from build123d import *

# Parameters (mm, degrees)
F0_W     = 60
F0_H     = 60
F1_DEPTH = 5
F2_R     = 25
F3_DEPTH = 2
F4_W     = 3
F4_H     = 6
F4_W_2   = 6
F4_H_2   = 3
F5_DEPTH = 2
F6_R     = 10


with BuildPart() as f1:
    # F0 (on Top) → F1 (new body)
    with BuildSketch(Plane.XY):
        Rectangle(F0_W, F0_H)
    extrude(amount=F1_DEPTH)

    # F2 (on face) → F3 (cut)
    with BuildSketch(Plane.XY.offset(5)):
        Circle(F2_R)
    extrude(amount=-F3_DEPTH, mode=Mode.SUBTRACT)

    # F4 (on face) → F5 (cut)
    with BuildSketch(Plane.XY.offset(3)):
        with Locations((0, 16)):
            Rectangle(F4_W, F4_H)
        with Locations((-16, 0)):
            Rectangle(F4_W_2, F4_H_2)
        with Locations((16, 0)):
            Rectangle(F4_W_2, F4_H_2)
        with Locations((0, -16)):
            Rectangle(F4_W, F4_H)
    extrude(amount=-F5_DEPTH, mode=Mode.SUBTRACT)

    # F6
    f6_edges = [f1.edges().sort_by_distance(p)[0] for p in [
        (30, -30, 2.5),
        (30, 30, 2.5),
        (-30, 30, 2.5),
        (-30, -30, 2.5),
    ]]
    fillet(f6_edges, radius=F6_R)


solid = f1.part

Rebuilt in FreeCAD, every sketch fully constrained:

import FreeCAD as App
import Part
import Sketcher
from FreeCAD import Vector


def edges_at(feature, points):
    """Names of the edges that pass closest to the given points."""
    edges = feature.Shape.Edges
    near = lambda p: min(range(len(edges)), key=lambda i: edges[i].distToShape(Part.Vertex(*p))[0])
    return sorted({f"Edge{near(p) + 1}" for p in points})

doc = App.newDocument("Part")
params = doc.addObject("Spreadsheet::Sheet", "Params")
for row, (alias, value) in enumerate([
    ("sketch1_width", "60 mm"),
    ("pad1_length", "5 mm"),
    ("sketch2_diameter", "50 mm"),
    ("pocket1_length", "2 mm"),
    ("sketch3_width", "3 mm"),
    ("sketch3_width2", "6 mm"),
    ("pocket2_length", "2 mm"),
    ("fillet_radius", "10 mm"),
], start=1):
    params.set(f"A{row}", alias)
    params.set(f"B{row}", "=" + value)
    params.setAlias(f"B{row}", alias)

body = doc.addObject("PartDesign::Body", "Body")

# Sketch on XY plane
sketch1 = doc.addObject("Sketcher::SketchObject", "Sketch")
body.addObject(sketch1)
sketch1.AttachmentSupport = (doc.XY_Plane, [""])
sketch1.MapMode = "FlatFace"
sketch1.addGeometry(Part.LineSegment(Vector(-30, 30, 0), Vector(-30, -30, 0)), False)
sketch1.addGeometry(Part.LineSegment(Vector(-30, -30, 0), Vector(30, -30, 0)), False)
sketch1.addGeometry(Part.LineSegment(Vector(30, -30, 0), Vector(30, 30, 0)), False)
sketch1.addGeometry(Part.LineSegment(Vector(30, 30, 0), Vector(-30, 30, 0)), False)
sketch1.addConstraint(Sketcher.Constraint("Coincident", 0, 2, 1, 1))
sketch1.addConstraint(Sketcher.Constraint("Coincident", 1, 2, 2, 1))
sketch1.addConstraint(Sketcher.Constraint("Coincident", 2, 2, 3, 1))
sketch1.addConstraint(Sketcher.Constraint("Coincident", 3, 2, 0, 1))
sketch1.addConstraint(Sketcher.Constraint("Vertical", 0))
sketch1.addConstraint(Sketcher.Constraint("Horizontal", 1))
sketch1.addConstraint(Sketcher.Constraint("Vertical", 2))
sketch1.addConstraint(Sketcher.Constraint("Horizontal", 3))
sketch1.addConstraint(Sketcher.Constraint("Symmetric", 0, 2, 2, 2, -1, 1))
sketch1.addConstraint(Sketcher.Constraint("Equal", 3, 0))
sketch1.addConstraint(Sketcher.Constraint("DistanceX", 1, 1, 1, 2, 60.0))
sketch1.setExpression("Constraints[10]", "Params.sketch1_width")
pad1 = doc.addObject("PartDesign::Pad", "Pad")
body.addObject(pad1)
pad1.Profile = sketch1
pad1.setExpression("Length", "Params.pad1_length")

# Sketch on XY plane
sketch2 = doc.addObject("Sketcher::SketchObject", "Sketch001")
body.addObject(sketch2)
sketch2.AttachmentSupport = (doc.XY_Plane, [""])
sketch2.MapMode = "FlatFace"
sketch2.AttachmentOffset = App.Placement(Vector(0, 0, 5), App.Rotation())
sketch2.addGeometry(Part.Circle(Vector(0, 0, 0), Vector(0, 0, 1), 25), False)
sketch2.addConstraint(Sketcher.Constraint("Coincident", 0, 3, -1, 1))
sketch2.addConstraint(Sketcher.Constraint("Diameter", 0, 50.0))
sketch2.setExpression("Constraints[1]", "Params.sketch2_diameter")
pocket1 = doc.addObject("PartDesign::Pocket", "Pocket")
body.addObject(pocket1)
pocket1.Profile = sketch2
pocket1.setExpression("Length", "Params.pocket1_length")

# Sketch on XY plane
sketch3 = doc.addObject("Sketcher::SketchObject", "Sketch002")
body.addObject(sketch3)
sketch3.AttachmentSupport = (doc.XY_Plane, [""])
sketch3.MapMode = "FlatFace"
sketch3.AttachmentOffset = App.Placement(Vector(0, 0, 3), App.Rotation())
sketch3.addGeometry(Part.LineSegment(Vector(-1.5, 19, 0), Vector(-1.5, 13, 0)), False)
sketch3.addGeometry(Part.LineSegment(Vector(-1.5, 13, 0), Vector(1.5, 13, 0)), False)
sketch3.addGeometry(Part.LineSegment(Vector(1.5, 13, 0), Vector(1.5, 19, 0)), False)
sketch3.addGeometry(Part.LineSegment(Vector(1.5, 19, 0), Vector(-1.5, 19, 0)), False)
sketch3.addGeometry(Part.LineSegment(Vector(-19, 1.5, 0), Vector(-19, -1.5, 0)), False)
sketch3.addGeometry(Part.LineSegment(Vector(-19, -1.5, 0), Vector(-13, -1.5, 0)), False)
sketch3.addGeometry(Part.LineSegment(Vector(-13, -1.5, 0), Vector(-13, 1.5, 0)), False)
sketch3.addGeometry(Part.LineSegment(Vector(-13, 1.5, 0), Vector(-19, 1.5, 0)), False)
sketch3.addGeometry(Part.LineSegment(Vector(13, 1.5, 0), Vector(13, -1.5, 0)), False)
sketch3.addGeometry(Part.LineSegment(Vector(13, -1.5, 0), Vector(19, -1.5, 0)), False)
sketch3.addGeometry(Part.LineSegment(Vector(19, -1.5, 0), Vector(19, 1.5, 0)), False)
sketch3.addGeometry(Part.LineSegment(Vector(19, 1.5, 0), Vector(13, 1.5, 0)), False)
sketch3.addGeometry(Part.LineSegment(Vector(-1.5, -13, 0), Vector(-1.5, -19, 0)), False)
sketch3.addGeometry(Part.LineSegment(Vector(-1.5, -19, 0), Vector(1.5, -19, 0)), False)
sketch3.addGeometry(Part.LineSegment(Vector(1.5, -19, 0), Vector(1.5, -13, 0)), False)
sketch3.addGeometry(Part.LineSegment(Vector(1.5, -13, 0), Vector(-1.5, -13, 0)), False)
sketch3.addConstraint(Sketcher.Constraint("Coincident", 0, 2, 1, 1))
sketch3.addConstraint(Sketcher.Constraint("Coincident", 1, 2, 2, 1))
sketch3.addConstraint(Sketcher.Constraint("Coincident", 2, 2, 3, 1))
sketch3.addConstraint(Sketcher.Constraint("Coincident", 3, 2, 0, 1))
sketch3.addConstraint(Sketcher.Constraint("Coincident", 4, 2, 5, 1))
sketch3.addConstraint(Sketcher.Constraint("Coincident", 5, 2, 6, 1))
sketch3.addConstraint(Sketcher.Constraint("Coincident", 6, 2, 7, 1))
sketch3.addConstraint(Sketcher.Constraint("Coincident", 7, 2, 4, 1))
sketch3.addConstraint(Sketcher.Constraint("Coincident", 8, 2, 9, 1))
sketch3.addConstraint(Sketcher.Constraint("Coincident", 9, 2, 10, 1))
sketch3.addConstraint(Sketcher.Constraint("Coincident", 10, 2, 11, 1))
sketch3.addConstraint(Sketcher.Constraint("Coincident", 11, 2, 8, 1))
sketch3.addConstraint(Sketcher.Constraint("Coincident", 12, 2, 13, 1))
sketch3.addConstraint(Sketcher.Constraint("Coincident", 13, 2, 14, 1))
sketch3.addConstraint(Sketcher.Constraint("Coincident", 14, 2, 15, 1))
sketch3.addConstraint(Sketcher.Constraint("Coincident", 15, 2, 12, 1))
sketch3.addConstraint(Sketcher.Constraint("Vertical", 0))
sketch3.addConstraint(Sketcher.Constraint("Horizontal", 1))
sketch3.addConstraint(Sketcher.Constraint("Vertical", 2))
sketch3.addConstraint(Sketcher.Constraint("Horizontal", 3))
sketch3.addConstraint(Sketcher.Constraint("Vertical", 4))
sketch3.addConstraint(Sketcher.Constraint("Horizontal", 5))
sketch3.addConstraint(Sketcher.Constraint("Vertical", 6))
sketch3.addConstraint(Sketcher.Constraint("Horizontal", 7))
sketch3.addConstraint(Sketcher.Constraint("Vertical", 8))
sketch3.addConstraint(Sketcher.Constraint("Horizontal", 9))
sketch3.addConstraint(Sketcher.Constraint("Vertical", 10))
sketch3.addConstraint(Sketcher.Constraint("Horizontal", 11))
sketch3.addConstraint(Sketcher.Constraint("Vertical", 12))
sketch3.addConstraint(Sketcher.Constraint("Horizontal", 13))
sketch3.addConstraint(Sketcher.Constraint("Vertical", 14))
sketch3.addConstraint(Sketcher.Constraint("Horizontal", 15))
sketch3.addConstraint(Sketcher.Constraint("Symmetric", 6, 2, 8, 2, -1, 1))
sketch3.addConstraint(Sketcher.Constraint("Symmetric", 4, 2, 10, 2, -1, 1))
sketch3.addConstraint(Sketcher.Constraint("Symmetric", 2, 2, 12, 2, -1, 1))
sketch3.addConstraint(Sketcher.Constraint("Symmetric", 0, 2, 14, 2, -1, 1))
sketch3.addConstraint(Sketcher.Constraint("Horizontal", 5, 2, 8, 2))
sketch3.addConstraint(Sketcher.Constraint("Vertical", 3, 2, 12, 2))
sketch3.addConstraint(Sketcher.Constraint("Equal", 11, 0))
sketch3.addConstraint(Sketcher.Constraint("Equal", 15, 4))
sketch3.addConstraint(Sketcher.Constraint("DistanceX", 1, 1, 1, 2, 3.0))
sketch3.addConstraint(Sketcher.Constraint("DistanceX", 5, 1, 5, 2, 6.0))
sketch3.addConstraint(Sketcher.Constraint("DistanceY", -1, 1, 0, 2, 13.0))
sketch3.addConstraint(Sketcher.Constraint("DistanceX", 4, 2, -1, 1, 19.0))
sketch3.setExpression("Constraints[40]", "Params.sketch3_width")
sketch3.setExpression("Constraints[41]", "Params.sketch3_width2")
pocket2 = doc.addObject("PartDesign::Pocket", "Pocket001")
body.addObject(pocket2)
pocket2.Profile = sketch3
pocket2.setExpression("Length", "Params.pocket2_length")
doc.recompute()

fillet = doc.addObject("PartDesign::Fillet", "Fillet")
body.addObject(fillet)
fillet.Base = (pocket2, edges_at(pocket2, [
    (30, -30, 2.5),
    (30, 30, 2.5),
    (-30, 30, 2.5),
    (-30, -30, 2.5),
]))
fillet.setExpression("Radius", "Params.fillet_radius")

doc.recompute()
